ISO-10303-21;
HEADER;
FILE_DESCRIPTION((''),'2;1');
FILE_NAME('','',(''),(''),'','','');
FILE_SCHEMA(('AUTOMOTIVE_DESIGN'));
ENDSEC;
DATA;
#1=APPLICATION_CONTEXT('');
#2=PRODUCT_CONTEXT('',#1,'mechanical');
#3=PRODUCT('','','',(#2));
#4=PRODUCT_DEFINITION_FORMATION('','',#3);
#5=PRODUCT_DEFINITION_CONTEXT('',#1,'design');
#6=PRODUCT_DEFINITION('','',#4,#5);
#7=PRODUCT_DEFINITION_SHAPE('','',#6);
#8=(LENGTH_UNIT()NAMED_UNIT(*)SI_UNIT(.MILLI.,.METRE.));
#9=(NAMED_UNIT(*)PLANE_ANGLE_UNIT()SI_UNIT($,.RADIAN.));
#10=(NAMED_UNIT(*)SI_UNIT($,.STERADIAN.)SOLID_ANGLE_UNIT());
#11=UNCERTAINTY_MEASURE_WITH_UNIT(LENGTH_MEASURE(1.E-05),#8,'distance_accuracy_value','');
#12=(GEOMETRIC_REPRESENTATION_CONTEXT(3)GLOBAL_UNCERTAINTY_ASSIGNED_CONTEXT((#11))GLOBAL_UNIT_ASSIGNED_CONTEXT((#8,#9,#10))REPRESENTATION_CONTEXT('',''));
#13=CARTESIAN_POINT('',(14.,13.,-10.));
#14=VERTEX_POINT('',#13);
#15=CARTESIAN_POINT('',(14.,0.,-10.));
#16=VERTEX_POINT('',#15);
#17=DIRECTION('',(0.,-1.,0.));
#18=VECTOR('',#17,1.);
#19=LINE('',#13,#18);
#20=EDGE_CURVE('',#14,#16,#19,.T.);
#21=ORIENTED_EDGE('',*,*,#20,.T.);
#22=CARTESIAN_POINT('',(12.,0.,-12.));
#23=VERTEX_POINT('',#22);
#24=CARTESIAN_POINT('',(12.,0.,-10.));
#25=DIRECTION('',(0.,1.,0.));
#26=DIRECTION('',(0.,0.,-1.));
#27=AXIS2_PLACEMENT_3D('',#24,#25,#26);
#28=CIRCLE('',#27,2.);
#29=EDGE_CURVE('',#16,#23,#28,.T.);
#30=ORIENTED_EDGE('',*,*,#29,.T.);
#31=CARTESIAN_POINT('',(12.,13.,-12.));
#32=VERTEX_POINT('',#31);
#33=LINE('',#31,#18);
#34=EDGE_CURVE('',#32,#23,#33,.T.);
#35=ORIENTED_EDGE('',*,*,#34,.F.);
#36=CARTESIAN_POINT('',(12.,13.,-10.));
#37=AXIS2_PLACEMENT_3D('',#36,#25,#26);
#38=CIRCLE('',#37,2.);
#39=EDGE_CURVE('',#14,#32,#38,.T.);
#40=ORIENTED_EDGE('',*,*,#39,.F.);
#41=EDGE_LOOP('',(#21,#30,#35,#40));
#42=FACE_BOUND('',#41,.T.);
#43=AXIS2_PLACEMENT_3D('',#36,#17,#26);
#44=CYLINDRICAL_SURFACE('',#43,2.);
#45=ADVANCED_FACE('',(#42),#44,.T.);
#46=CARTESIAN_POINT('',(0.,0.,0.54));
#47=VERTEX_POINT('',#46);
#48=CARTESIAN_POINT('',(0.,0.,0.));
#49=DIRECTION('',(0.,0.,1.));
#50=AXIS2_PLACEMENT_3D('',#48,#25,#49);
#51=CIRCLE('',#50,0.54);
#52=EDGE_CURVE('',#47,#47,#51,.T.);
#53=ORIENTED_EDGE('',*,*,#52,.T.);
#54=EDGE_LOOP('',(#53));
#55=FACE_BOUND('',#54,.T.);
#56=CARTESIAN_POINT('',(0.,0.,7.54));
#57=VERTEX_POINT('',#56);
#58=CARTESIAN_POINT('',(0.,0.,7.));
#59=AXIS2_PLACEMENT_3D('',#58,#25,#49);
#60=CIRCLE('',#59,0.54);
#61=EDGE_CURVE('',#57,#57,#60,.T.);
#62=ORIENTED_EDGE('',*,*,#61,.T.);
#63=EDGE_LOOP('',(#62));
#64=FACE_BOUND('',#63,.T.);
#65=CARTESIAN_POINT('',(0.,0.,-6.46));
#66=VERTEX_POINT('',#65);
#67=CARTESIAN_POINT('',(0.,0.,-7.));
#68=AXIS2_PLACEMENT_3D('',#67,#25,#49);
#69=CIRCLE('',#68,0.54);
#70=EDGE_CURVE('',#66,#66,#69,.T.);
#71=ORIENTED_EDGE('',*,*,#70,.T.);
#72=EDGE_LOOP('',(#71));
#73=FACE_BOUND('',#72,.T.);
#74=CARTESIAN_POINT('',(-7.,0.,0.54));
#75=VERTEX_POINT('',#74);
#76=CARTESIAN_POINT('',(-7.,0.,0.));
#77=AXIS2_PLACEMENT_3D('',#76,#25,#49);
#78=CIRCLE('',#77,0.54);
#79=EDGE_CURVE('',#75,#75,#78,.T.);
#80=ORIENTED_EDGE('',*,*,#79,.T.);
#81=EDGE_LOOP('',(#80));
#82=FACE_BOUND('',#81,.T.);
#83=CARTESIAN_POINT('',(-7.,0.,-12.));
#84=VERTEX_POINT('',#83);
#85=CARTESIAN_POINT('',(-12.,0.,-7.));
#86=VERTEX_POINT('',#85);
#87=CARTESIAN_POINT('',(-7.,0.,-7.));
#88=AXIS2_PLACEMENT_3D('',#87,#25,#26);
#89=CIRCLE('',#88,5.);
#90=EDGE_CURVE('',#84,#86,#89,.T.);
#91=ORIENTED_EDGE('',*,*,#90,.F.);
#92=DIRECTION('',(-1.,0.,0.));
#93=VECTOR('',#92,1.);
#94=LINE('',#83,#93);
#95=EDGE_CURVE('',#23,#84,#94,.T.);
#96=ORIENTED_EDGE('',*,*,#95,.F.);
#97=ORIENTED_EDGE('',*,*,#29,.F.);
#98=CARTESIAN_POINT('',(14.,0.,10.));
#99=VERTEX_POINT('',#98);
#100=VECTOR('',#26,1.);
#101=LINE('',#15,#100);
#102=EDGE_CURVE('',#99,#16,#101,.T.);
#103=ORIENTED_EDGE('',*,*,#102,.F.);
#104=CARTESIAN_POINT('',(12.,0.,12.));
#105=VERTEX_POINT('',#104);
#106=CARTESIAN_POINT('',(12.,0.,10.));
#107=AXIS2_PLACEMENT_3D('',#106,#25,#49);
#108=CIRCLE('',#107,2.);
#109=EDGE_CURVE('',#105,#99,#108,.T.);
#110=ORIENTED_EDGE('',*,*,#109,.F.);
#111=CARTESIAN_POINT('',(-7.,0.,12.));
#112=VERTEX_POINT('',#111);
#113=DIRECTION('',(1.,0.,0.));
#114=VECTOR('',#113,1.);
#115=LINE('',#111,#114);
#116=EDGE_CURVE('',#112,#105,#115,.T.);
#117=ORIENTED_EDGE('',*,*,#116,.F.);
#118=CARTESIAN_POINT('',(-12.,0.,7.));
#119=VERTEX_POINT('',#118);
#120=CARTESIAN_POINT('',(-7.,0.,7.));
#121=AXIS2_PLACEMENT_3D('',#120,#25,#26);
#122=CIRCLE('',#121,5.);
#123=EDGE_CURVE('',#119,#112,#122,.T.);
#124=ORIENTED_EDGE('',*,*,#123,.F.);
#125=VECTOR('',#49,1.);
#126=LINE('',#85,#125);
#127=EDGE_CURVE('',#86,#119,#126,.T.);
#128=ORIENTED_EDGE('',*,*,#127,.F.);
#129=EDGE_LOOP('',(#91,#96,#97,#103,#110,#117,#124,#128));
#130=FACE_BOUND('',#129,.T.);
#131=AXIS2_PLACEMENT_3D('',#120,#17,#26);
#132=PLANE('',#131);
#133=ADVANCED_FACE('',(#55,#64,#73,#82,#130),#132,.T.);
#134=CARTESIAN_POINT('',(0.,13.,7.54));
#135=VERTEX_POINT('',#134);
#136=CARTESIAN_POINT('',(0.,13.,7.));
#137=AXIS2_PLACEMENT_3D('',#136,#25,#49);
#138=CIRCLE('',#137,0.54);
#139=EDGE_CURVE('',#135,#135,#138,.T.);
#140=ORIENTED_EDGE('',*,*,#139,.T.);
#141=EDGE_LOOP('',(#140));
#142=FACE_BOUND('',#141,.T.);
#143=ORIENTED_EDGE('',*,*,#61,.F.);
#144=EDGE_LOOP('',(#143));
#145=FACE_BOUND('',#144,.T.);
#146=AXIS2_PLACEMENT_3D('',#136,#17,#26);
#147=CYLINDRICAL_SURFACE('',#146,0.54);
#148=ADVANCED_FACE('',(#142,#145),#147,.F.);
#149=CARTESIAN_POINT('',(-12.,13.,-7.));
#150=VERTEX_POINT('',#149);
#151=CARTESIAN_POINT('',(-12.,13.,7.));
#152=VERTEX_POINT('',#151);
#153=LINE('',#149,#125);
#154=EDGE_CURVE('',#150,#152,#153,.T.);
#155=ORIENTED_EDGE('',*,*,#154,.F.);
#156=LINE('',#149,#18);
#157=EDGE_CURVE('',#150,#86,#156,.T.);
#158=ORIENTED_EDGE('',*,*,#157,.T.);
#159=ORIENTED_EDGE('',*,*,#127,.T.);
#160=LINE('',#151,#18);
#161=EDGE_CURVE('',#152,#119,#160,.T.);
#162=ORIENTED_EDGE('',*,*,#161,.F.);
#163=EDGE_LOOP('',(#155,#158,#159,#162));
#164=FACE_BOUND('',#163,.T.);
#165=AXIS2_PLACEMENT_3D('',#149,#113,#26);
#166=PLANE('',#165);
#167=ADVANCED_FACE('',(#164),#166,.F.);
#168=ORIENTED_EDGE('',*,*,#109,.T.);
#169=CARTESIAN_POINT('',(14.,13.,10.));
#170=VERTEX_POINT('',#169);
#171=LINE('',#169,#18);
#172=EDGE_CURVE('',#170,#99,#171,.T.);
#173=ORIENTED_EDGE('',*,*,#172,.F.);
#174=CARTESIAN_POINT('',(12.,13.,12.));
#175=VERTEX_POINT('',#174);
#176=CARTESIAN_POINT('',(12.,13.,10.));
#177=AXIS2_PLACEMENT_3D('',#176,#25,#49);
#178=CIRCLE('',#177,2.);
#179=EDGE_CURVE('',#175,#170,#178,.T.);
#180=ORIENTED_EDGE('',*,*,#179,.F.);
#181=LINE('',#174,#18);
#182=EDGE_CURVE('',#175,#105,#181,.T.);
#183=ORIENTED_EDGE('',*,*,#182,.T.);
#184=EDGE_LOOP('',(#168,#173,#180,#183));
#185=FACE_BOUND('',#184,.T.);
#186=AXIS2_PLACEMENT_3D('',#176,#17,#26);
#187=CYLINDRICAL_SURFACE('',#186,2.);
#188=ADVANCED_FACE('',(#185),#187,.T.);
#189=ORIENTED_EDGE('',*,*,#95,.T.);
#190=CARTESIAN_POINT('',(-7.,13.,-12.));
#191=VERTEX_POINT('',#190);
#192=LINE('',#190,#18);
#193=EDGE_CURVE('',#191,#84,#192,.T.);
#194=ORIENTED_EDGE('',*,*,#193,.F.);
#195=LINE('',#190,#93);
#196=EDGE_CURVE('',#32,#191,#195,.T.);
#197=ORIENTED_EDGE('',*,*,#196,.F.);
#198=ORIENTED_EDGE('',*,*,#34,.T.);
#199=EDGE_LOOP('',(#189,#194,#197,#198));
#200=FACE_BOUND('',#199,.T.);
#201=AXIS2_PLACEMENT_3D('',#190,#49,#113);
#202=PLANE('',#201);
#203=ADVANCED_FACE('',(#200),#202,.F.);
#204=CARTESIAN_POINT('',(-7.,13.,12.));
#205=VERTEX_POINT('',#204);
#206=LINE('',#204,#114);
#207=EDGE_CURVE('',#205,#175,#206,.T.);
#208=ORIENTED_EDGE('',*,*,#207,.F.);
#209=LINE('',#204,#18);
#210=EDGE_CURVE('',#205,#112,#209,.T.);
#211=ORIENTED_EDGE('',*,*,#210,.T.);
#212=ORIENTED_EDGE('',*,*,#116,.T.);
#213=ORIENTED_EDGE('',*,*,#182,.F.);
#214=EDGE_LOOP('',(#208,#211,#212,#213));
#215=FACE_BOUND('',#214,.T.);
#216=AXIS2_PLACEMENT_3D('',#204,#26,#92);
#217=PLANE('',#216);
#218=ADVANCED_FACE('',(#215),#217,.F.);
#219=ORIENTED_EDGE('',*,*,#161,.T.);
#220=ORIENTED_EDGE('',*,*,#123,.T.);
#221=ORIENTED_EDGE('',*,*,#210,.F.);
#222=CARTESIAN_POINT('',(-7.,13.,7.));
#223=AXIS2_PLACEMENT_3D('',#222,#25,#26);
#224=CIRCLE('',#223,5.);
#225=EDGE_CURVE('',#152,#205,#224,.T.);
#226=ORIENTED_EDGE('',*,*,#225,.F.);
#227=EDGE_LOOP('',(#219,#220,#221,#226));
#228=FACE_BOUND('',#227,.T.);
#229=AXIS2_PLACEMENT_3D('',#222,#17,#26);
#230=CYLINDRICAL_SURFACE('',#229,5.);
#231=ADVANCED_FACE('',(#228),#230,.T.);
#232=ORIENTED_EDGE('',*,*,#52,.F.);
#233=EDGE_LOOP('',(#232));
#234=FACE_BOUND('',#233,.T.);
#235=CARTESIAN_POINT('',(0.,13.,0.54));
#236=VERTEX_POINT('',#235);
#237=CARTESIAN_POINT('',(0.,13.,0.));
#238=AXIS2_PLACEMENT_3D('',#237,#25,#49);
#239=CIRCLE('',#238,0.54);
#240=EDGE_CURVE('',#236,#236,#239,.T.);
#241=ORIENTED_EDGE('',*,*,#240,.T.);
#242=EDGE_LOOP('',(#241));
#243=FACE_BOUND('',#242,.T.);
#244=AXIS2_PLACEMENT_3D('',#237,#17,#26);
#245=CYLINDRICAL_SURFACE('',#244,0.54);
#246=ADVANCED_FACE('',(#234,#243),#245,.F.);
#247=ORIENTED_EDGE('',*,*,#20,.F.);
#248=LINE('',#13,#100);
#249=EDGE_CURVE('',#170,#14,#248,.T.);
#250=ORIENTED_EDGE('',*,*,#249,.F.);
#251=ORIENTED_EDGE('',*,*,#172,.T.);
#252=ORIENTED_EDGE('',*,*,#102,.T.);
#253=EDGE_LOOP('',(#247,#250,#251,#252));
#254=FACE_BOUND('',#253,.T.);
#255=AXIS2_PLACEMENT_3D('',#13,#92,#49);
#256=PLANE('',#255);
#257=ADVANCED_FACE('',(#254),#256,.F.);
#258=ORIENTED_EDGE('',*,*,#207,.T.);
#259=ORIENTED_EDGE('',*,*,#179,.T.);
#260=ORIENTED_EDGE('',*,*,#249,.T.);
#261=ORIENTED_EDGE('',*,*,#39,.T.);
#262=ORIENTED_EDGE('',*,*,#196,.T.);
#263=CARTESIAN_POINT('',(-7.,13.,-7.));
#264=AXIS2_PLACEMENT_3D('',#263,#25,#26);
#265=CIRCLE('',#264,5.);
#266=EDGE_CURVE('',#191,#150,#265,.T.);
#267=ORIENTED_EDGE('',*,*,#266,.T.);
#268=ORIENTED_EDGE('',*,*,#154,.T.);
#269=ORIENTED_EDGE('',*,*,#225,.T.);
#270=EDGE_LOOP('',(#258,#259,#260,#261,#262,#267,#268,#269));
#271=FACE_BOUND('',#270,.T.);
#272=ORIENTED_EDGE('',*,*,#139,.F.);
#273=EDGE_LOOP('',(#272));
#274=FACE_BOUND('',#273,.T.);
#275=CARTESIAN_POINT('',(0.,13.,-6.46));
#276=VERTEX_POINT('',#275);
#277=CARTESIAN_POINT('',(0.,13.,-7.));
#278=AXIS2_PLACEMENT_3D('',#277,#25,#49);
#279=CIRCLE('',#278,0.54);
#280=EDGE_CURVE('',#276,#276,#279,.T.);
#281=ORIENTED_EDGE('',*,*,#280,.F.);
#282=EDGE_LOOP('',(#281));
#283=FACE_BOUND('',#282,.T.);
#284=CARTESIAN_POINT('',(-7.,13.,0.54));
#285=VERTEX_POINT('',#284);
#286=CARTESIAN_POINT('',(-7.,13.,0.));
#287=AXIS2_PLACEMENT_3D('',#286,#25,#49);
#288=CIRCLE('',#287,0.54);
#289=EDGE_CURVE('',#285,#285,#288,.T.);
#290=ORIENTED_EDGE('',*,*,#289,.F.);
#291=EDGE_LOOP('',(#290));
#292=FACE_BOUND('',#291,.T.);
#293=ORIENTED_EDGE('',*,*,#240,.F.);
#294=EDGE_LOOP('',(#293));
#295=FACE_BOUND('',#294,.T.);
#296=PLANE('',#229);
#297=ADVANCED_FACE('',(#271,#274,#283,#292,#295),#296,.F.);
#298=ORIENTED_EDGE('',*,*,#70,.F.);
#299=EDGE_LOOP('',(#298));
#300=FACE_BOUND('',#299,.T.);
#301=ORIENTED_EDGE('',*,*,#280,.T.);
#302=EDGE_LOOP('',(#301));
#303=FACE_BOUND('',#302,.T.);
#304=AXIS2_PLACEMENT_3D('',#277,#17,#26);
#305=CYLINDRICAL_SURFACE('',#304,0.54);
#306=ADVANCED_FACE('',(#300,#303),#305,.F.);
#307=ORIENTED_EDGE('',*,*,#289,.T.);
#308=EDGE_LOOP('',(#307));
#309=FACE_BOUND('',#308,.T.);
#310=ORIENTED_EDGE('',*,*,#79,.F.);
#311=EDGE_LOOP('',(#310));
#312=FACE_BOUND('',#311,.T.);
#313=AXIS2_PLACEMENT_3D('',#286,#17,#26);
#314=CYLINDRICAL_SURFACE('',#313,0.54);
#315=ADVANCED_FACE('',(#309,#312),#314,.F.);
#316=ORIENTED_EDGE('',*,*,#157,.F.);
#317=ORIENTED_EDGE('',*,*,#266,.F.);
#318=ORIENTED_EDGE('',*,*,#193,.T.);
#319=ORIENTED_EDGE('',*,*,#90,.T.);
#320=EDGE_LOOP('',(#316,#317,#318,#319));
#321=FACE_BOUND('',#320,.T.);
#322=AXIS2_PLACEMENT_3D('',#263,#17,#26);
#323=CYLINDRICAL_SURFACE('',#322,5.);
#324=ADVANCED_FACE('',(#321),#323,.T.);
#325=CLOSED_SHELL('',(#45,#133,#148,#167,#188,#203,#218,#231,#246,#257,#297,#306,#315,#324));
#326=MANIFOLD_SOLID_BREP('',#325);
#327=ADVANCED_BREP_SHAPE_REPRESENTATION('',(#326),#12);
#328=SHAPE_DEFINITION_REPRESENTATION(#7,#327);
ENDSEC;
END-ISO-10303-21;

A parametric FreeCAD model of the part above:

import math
import FreeCAD as App
import Part
import Sketcher

doc = App.newDocument("Part")
params = doc.addObject("Spreadsheet::Sheet", "Params")
for row, (alias, value) in enumerate([
    ("sketch1_radius", "5 mm"),
    ("sketch1_radius2", "2 mm"),
    ("sketch1_diameter", "1.08 mm"),
    ("sketch1_width", "19 mm"),
    ("sketch1_height", "14 mm"),
    ("pad1_length", "13 mm"),
], start=1):
    params.set(f"A{row}", alias)
    params.set(f"B{row}", "=" + value)
    params.setAlias(f"B{row}", alias)

body = doc.addObject("PartDesign::Body", "Body")

sketch1 = doc.addObject("Sketcher::SketchObject", "Sketch")
body.addObject(sketch1)
sketch1.AttachmentSupport = (doc.XZ_Plane, [""])
sketch1.MapMode = "FlatFace"
sketch1.addGeometry(Part.LineSegment(App.Vector(12, -12, 0), App.Vector(-7, -12, 0)), False)
sketch1.addGeometry(Part.ArcOfCircle(Part.Circle(App.Vector(-7, -7, 0), App.Vector(0, 0, 1), 5), math.radians(180), math.radians(270)), False)
sketch1.addGeometry(Part.LineSegment(App.Vector(-12, -7, 0), App.Vector(-12, 7, 0)), False)
sketch1.addGeometry(Part.ArcOfCircle(Part.Circle(App.Vector(-7, 7, 0), App.Vector(0, 0, 1), 5), math.radians(90), math.radians(180)), False)
sketch1.addGeometry(Part.LineSegment(App.Vector(-7, 12, 0), App.Vector(12, 12, 0)), False)
sketch1.addGeometry(Part.ArcOfCircle(Part.Circle(App.Vector(12, 10, 0), App.Vector(0, 0, 1), 2), math.radians(0), math.radians(90)), False)
sketch1.addGeometry(Part.LineSegment(App.Vector(14, 10, 0), App.Vector(14, -10, 0)), False)
sketch1.addGeometry(Part.ArcOfCircle(Part.Circle(App.Vector(12, -10, 0), App.Vector(0, 0, 1), 2), math.radians(-90), math.radians(0)), False)
sketch1.addGeometry(Part.Circle(App.Vector(0, 7, 0), App.Vector(0, 0, 1), 0.5), False)
sketch1.addGeometry(Part.Circle(App.Vector(0, 0, 0), App.Vector(0, 0, 1), 0.5), False)
sketch1.addGeometry(Part.Circle(App.Vector(0, -7, 0), App.Vector(0, 0, 1), 0.5), False)
sketch1.addGeometry(Part.Circle(App.Vector(-7, 0, 0), App.Vector(0, 0, 1), 0.5), False)
sketch1.addConstraint(Sketcher.Constraint("Tangent", 0, 2, 1, 2))
sketch1.addConstraint(Sketcher.Constraint("Tangent", 1, 1, 2, 1))
sketch1.addConstraint(Sketcher.Constraint("Tangent", 2, 2, 3, 2))
sketch1.addConstraint(Sketcher.Constraint("Tangent", 3, 1, 4, 1))
sketch1.addConstraint(Sketcher.Constraint("Tangent", 4, 2, 5, 2))
sketch1.addConstraint(Sketcher.Constraint("Tangent", 5, 1, 6, 1))
sketch1.addConstraint(Sketcher.Constraint("Tangent", 6, 2, 7, 2))
sketch1.addConstraint(Sketcher.Constraint("Tangent", 7, 1, 0, 1))
sketch1.addConstraint(Sketcher.Constraint("Horizontal", 0))
sketch1.addConstraint(Sketcher.Constraint("Vertical", 2))
sketch1.addConstraint(Sketcher.Constraint("Horizontal", 4))
sketch1.addConstraint(Sketcher.Constraint("Vertical", 6))
sketch1.addConstraint(Sketcher.Constraint("Coincident", 9, 3, -1, 1))
sketch1.addConstraint(Sketcher.Constraint("Equal", 1, 3))
sketch1.addConstraint(Sketcher.Constraint("Equal", 5, 7))
sketch1.addConstraint(Sketcher.Constraint("Equal", 8, 9))
sketch1.addConstraint(Sketcher.Constraint("Equal", 9, 10))
sketch1.addConstraint(Sketcher.Constraint("Equal", 10, 11))
sketch1.addConstraint(Sketcher.Constraint("Symmetric", 8, 3, 10, 3, -1, 1))
sketch1.addConstraint(Sketcher.Constraint("PointOnObject", 8, 3, -2))
sketch1.addConstraint(Sketcher.Constraint("PointOnObject", 11, 3, -1))
sketch1.addConstraint(Sketcher.Constraint("Horizontal", 3, 3, 8, 3))
sketch1.addConstraint(Sketcher.Constraint("Horizontal", 1, 3, 10, 3))
sketch1.addConstraint(Sketcher.Constraint("Vertical", 3, 3, 11, 3))
sketch1.addConstraint(Sketcher.Constraint("Radius", 1, 5.0))
sketch1.addConstraint(Sketcher.Constraint("Radius", 5, 2.0))
sketch1.addConstraint(Sketcher.Constraint("Diameter", 8, 1.08))
sketch1.addConstraint(Sketcher.Constraint("DistanceX", 0, 2, 0, 1, 19.0))
sketch1.addConstraint(Sketcher.Constraint("DistanceY", 2, 1, 2, 2, 14.0))
sketch1.addConstraint(Sketcher.Constraint("DistanceX", 1, 3, -1, 1, 7.0))
sketch1.setExpression("Constraints[24]", "Params.sketch1_radius")
sketch1.setExpression("Constraints[25]", "Params.sketch1_radius2")
sketch1.setExpression("Constraints[26]", "Params.sketch1_diameter")
sketch1.setExpression("Constraints[27]", "Params.sketch1_width")
sketch1.setExpression("Constraints[28]", "Params.sketch1_height")
pad1 = doc.addObject("PartDesign::Pad", "Pad")
body.addObject(pad1)
pad1.Profile = sketch1
pad1.setExpression("Length", "Params.pad1_length")
pad1.Reversed = True

doc.recompute()
